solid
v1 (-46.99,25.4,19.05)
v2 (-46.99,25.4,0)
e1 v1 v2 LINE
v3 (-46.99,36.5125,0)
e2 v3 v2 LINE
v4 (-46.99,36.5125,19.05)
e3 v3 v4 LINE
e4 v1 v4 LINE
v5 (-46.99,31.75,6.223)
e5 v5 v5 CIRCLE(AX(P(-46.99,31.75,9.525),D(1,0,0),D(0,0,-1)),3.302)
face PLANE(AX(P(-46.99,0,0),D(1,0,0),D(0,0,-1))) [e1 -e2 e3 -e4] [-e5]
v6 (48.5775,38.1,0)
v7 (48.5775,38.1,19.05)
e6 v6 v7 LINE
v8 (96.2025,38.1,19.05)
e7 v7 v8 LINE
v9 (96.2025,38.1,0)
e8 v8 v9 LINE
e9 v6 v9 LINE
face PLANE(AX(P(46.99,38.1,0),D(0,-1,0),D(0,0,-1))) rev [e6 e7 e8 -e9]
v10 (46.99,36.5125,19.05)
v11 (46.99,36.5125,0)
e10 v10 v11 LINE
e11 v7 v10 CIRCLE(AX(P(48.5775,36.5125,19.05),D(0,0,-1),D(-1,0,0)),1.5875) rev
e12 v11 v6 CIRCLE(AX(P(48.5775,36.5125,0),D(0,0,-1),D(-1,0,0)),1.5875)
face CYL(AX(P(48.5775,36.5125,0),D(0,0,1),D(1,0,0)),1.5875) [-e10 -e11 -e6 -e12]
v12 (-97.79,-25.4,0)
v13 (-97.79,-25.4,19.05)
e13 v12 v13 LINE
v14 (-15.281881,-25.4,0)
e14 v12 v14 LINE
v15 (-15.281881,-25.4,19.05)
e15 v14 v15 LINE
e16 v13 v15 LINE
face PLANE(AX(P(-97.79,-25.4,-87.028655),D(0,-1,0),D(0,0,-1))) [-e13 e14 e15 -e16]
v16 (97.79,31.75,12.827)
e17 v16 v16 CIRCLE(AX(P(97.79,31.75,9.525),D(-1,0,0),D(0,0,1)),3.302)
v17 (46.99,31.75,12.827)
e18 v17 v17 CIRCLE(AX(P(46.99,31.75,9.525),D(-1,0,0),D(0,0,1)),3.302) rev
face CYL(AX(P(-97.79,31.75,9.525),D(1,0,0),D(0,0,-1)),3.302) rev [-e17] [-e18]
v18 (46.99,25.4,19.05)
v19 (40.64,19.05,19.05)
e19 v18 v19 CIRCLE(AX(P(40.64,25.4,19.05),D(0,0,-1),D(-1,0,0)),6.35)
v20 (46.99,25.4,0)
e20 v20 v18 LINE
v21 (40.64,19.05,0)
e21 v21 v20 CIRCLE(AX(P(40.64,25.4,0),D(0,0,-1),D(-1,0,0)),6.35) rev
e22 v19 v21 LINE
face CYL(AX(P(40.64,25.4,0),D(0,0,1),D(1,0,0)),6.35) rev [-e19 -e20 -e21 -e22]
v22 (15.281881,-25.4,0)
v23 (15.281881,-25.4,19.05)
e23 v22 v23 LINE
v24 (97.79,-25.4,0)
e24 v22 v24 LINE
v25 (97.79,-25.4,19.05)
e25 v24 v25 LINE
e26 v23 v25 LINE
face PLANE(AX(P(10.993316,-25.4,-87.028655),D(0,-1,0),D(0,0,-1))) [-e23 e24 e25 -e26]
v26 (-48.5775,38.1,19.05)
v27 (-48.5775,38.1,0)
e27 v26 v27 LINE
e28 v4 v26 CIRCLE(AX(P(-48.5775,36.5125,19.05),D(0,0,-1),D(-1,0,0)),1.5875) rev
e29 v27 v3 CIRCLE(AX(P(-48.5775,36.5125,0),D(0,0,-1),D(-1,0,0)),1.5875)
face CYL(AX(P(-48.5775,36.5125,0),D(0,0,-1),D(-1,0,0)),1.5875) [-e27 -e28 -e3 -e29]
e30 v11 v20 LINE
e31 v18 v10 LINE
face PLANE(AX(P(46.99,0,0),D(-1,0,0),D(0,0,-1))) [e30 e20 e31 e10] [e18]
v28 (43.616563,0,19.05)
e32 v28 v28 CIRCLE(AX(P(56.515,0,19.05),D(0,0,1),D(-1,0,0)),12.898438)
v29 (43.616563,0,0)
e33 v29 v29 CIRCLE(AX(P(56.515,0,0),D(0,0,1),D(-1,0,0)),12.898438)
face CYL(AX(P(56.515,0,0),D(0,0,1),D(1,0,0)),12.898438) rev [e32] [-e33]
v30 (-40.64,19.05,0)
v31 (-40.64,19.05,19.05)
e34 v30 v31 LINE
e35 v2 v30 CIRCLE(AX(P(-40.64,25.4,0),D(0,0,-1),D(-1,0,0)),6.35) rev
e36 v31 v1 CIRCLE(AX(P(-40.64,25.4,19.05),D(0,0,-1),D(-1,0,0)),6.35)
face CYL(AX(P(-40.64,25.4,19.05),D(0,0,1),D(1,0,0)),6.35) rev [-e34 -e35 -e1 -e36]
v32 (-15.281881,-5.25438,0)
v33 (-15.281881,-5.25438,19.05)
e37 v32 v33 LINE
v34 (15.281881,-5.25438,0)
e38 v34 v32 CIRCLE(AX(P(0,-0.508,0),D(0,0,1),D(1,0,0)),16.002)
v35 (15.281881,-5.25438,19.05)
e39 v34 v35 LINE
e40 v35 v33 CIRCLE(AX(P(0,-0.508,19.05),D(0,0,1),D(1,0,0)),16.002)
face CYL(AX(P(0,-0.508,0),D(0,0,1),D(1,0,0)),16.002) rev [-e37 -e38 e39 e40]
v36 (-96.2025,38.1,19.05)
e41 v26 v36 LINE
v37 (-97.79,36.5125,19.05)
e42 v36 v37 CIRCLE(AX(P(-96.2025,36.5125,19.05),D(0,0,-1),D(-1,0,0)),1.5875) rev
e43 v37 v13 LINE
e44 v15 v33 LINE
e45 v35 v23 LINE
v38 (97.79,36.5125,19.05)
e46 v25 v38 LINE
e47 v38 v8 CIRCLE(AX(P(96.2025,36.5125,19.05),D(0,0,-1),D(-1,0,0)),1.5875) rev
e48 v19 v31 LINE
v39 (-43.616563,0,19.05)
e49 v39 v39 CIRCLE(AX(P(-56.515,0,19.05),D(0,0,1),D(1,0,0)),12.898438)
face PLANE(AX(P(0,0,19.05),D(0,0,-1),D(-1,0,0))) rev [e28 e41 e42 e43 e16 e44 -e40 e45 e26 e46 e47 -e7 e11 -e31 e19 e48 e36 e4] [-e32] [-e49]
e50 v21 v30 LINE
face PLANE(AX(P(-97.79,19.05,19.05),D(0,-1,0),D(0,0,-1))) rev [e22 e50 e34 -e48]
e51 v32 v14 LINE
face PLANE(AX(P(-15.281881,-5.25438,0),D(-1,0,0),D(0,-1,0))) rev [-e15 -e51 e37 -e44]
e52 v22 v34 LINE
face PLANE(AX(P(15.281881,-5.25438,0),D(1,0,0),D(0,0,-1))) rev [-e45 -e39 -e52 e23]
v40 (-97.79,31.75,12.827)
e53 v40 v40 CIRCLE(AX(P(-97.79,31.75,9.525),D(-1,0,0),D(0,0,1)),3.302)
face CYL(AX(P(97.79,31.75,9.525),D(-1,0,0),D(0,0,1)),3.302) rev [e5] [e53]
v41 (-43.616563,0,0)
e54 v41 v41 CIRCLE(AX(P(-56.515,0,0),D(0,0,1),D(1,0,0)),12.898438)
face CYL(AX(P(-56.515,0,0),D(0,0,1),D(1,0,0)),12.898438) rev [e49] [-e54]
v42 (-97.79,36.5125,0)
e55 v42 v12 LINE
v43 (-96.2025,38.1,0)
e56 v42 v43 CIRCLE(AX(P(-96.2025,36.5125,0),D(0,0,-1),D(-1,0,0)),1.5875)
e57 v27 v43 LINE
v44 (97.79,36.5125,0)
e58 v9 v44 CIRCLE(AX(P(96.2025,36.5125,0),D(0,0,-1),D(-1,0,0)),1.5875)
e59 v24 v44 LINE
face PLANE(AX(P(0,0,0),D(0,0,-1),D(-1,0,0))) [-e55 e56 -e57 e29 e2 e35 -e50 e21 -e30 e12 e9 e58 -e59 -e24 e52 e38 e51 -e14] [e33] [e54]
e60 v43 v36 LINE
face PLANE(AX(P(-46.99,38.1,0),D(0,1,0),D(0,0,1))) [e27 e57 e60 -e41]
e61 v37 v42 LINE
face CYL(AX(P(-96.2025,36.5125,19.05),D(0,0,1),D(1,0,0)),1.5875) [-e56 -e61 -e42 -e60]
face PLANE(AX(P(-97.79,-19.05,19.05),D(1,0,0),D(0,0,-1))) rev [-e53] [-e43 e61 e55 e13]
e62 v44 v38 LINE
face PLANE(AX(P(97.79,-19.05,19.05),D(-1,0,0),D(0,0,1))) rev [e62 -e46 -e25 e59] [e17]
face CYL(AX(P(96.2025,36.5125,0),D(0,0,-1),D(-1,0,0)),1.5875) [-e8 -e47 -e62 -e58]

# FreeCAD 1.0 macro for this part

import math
import FreeCAD as App
import Part
import Sketcher
from FreeCAD import Vector
Q = App.Units.Quantity


def edges_at(feature, points):
    """Names of the edges that pass closest to the given points."""
    edges = feature.Shape.Edges
    near = lambda p: min(range(len(edges)), key=lambda i: edges[i].distToShape(Part.Vertex(*p))[0])
    return sorted({f"Edge{near(p) + 1}" for p in points})

doc = App.newDocument("Part")
body = doc.addObject("PartDesign::Body", "Body")

# Sketch on XY plane
sketch1 = doc.addObject("Sketcher::SketchObject", "Sketch")
body.addObject(sketch1)
sketch1.AttachmentSupport = (doc.XY_Plane, [""])
sketch1.MapMode = "FlatFace"
sketch1.addGeometry([
    Part.LineSegment(Vector(-98, 19, 0), Vector(-98, -19, 0)),
    Part.LineSegment(Vector(-98, -19, 0), Vector(98, -19, 0)),
    Part.LineSegment(Vector(98, -19, 0), Vector(98, 19, 0)),
    Part.LineSegment(Vector(98, 19, 0), Vector(-98, 19, 0)),
], False)
sketch1.addConstraint([
    Sketcher.Constraint("Coincident", 0, 2, 1, 1),
    Sketcher.Constraint("Coincident", 1, 2, 2, 1),
    Sketcher.Constraint("Coincident", 2, 2, 3, 1),
    Sketcher.Constraint("Coincident", 3, 2, 0, 1),
    Sketcher.Constraint("Vertical", 0),
    Sketcher.Constraint("Horizontal", 1),
    Sketcher.Constraint("Vertical", 2),
    Sketcher.Constraint("Horizontal", 3),
    Sketcher.Constraint("Symmetric", 0, 2, 2, 2, -1, 1),
    Sketcher.Constraint("DistanceX", 1, 1, 1, 2, Q("7.7 in")),
    Sketcher.Constraint("DistanceY", 0, 2, 0, 1, Q("1.5 in")),
])
pad1 = doc.addObject("PartDesign::Pad", "Pad")
body.addObject(pad1)
pad1.Profile = sketch1
pad1.Length = Q("0.75 in")

# Sketch on XY plane
sketch2 = doc.addObject("Sketcher::SketchObject", "Sketch001")
body.addObject(sketch2)
sketch2.AttachmentSupport = (doc.XY_Plane, [""])
sketch2.MapMode = "FlatFace"
sketch2.AttachmentOffset = App.Placement(Vector(0, 0, 0.75 * 25.4), App.Rotation())
sketch2.addGeometry([
    Part.Circle(Vector(-57, 0, 0), Vector(0, 0, 1), 13),
    Part.Circle(Vector(57, 0, 0), Vector(0, 0, 1), 13),
], False)
sketch2.addConstraint([
    Sketcher.Constraint("Equal", 0, 1),
    Sketcher.Constraint("Symmetric", 0, 3, 1, 3, -1, 1),
    Sketcher.Constraint("PointOnObject", 0, 3, -1),
    Sketcher.Constraint("Diameter", 0, Q("1.015625 in")),
    Sketcher.Constraint("DistanceX", 0, 3, 1, 3, Q("4.45 in")),
])
pocket1 = doc.addObject("PartDesign::Pocket", "Pocket")
body.addObject(pocket1)
pocket1.Profile = sketch2
pocket1.Type = "ThroughAll"

# Sketch on XY plane
sketch3 = doc.addObject("Sketcher::SketchObject", "Sketch002")
body.addObject(sketch3)
sketch3.AttachmentSupport = (doc.XY_Plane, [""])
sketch3.MapMode = "FlatFace"
sketch3.AttachmentOffset = App.Placement(Vector(0, 0, 0.75 * 25.4), App.Rotation())
sketch3.addGeometry([
    Part.LineSegment(Vector(-15, -5, 0), Vector(-10, -22, 0)),
    Part.LineSegment(Vector(-10, -22, 0), Vector(10, -22, 0)),
    Part.LineSegment(Vector(10, -22, 0), Vector(15, -5, 0)),
    Part.ArcOfCircle(Part.Circle(Vector(0, -1, 0), Vector(0, 0, 1), 16), math.radians(-17), math.radians(197)),
], False)
sketch3.addConstraint([
    Sketcher.Constraint("Coincident", 0, 2, 1, 1),
    Sketcher.Constraint("Coincident", 1, 2, 2, 1),
    Sketcher.Constraint("Coincident", 2, 2, 3, 1),
    Sketcher.Constraint("Coincident", 3, 2, 0, 1),
    Sketcher.Constraint("Horizontal", 1),
    Sketcher.Constraint("Symmetric", 2, 2, 3, 2, -2),
    Sketcher.Constraint("Equal", 0, 2),
    Sketcher.Constraint("Radius", 3, Q("0.63 in")),
    Sketcher.Constraint("DistanceY", 3, 3, -1, 1, Q("0.02 in")),
    Sketcher.Constraint("Distance", 0, 17.502989),
    Sketcher.Constraint("DistanceX", 1, 1, 1, 2, 20.172182),
    Sketcher.Constraint("DistanceX", -1, 1, 2, 2, 15.281881),
])
pocket2 = doc.addObject("PartDesign::Pocket", "Pocket001")
body.addObject(pocket2)
pocket2.Profile = sketch3
pocket2.Type = "ThroughAll"

# Sketch on YZ plane
sketch4 = doc.addObject("Sketcher::SketchObject", "Sketch003")
body.addObject(sketch4)
sketch4.AttachmentSupport = (doc.YZ_Plane, [""])
sketch4.MapMode = "FlatFace"
sketch4.AttachmentOffset = App.Placement(Vector(0, 0, -3.85 * 25.4), App.Rotation())
sketch4.addGeometry([
    Part.LineSegment(Vector(38, 0, 0), Vector(19, 0, 0)),
    Part.LineSegment(Vector(19, 0, 0), Vector(19, 19, 0)),
    Part.LineSegment(Vector(19, 19, 0), Vector(38, 19, 0)),
    Part.LineSegment(Vector(38, 19, 0), Vector(38, 0, 0)),
], False)
sketch4.addConstraint([
    Sketcher.Constraint("Coincident", 0, 2, 1, 1),
    Sketcher.Constraint("Coincident", 1, 2, 2, 1),
    Sketcher.Constraint("Coincident", 2, 2, 3, 1),
    Sketcher.Constraint("Coincident", 3, 2, 0, 1),
    Sketcher.Constraint("Horizontal", 0),
    Sketcher.Constraint("Vertical", 1),
    Sketcher.Constraint("Horizontal", 2),
    Sketcher.Constraint("Vertical", 3),
    Sketcher.Constraint("PointOnObject", 0, 2, -1),
    Sketcher.Constraint("Equal", 2, 1),
    Sketcher.Constraint("DistanceX", 0, 2, 0, 1, Q("0.75 in")),
    Sketcher.Constraint("DistanceX", -1, 1, 2, 2, Q("1.5 in")),
])
pad2 = doc.addObject("PartDesign::Pad", "Pad001")
body.addObject(pad2)
pad2.Profile = sketch4
pad2.Length = Q("2 in")

# Sketch on YZ plane
sketch5 = doc.addObject("Sketcher::SketchObject", "Sketch004")
body.addObject(sketch5)
sketch5.AttachmentSupport = (doc.YZ_Plane, [""])
sketch5.MapMode = "FlatFace"
sketch5.AttachmentOffset = App.Placement(Vector(0, 0, -3.85 * 25.4), App.Rotation())
sketch5.addGeometry(Part.Circle(Vector(31.8, 9.5, 0), Vector(0, 0, 1), 3.3), False)
sketch5.addConstraint([
    Sketcher.Constraint("Diameter", 0, Q("0.26 in")),
    Sketcher.Constraint("DistanceX", -1, 1, 0, 3, Q("1.25 in")),
    Sketcher.Constraint("DistanceY", -1, 1, 0, 3, Q("0.375 in")),
])
pocket3 = doc.addObject("PartDesign::Pocket", "Pocket002")
body.addObject(pocket3)
pocket3.Profile = sketch5
pocket3.Type = "ThroughAll"
pocket3.Reversed = True
doc.recompute()

mirrored = doc.addObject("PartDesign::Mirrored", "Mirrored")
body.addObject(mirrored)
mirrored.Originals = [pad2, pocket3]
mirrored.MirrorPlane = (doc.YZ_Plane, [""])
body.Tip = mirrored
doc.recompute()

fillet = doc.addObject("PartDesign::Fillet", "Fillet")
body.addObject(fillet)
fillet.Base = (mirrored, edges_at(mirrored, [(-46.99, 19.05, 9.525), (46.99, 19.05, 9.525)]))
fillet.Radius = Q("0.25 in")
doc.recompute()

fillet2 = doc.addObject("PartDesign::Fillet", "Fillet001")
body.addObject(fillet2)
fillet2.Base = (fillet, edges_at(fillet, [
    (-46.99, 38.1, 9.525),
    (-97.79, 38.1, 9.525),
    (97.79, 38.1, 9.525),
    (46.99, 38.1, 9.525),
]))
fillet2.Radius = Q("0.0625 in")

# Sketch on XY plane
sketch6 = doc.addObject("Sketcher::SketchObject", "Sketch005")
body.addObject(sketch6)
sketch6.AttachmentSupport = (doc.XY_Plane, [""])
sketch6.MapMode = "FlatFace"
sketch6.AttachmentOffset = App.Placement(Vector(0, 0, 0.75 * 25.4), App.Rotation())
sketch6.addGeometry([
    Part.LineSegment(Vector(-98, -19, 0), Vector(-98, -25, 0)),  # 0
    Part.LineSegment(Vector(-98, -25, 0), Vector(-11, -25, 0)),  # 1
    Part.LineSegment(Vector(-11, -25, 0), Vector(-11, -19, 0)),  # 2
    Part.LineSegment(Vector(-11, -19, 0), Vector(-98, -19, 0)),  # 3
    Part.LineSegment(Vector(11, -19, 0), Vector(11, -25, 0)),  # 4
    Part.LineSegment(Vector(11, -25, 0), Vector(98, -25, 0)),  # 5
    Part.LineSegment(Vector(98, -25, 0), Vector(98, -19, 0)),  # 6
    Part.LineSegment(Vector(98, -19, 0), Vector(11, -19, 0)),  # 7
], False)
sketch6.addConstraint([
    Sketcher.Constraint("Coincident", 0, 2, 1, 1),
    Sketcher.Constraint("Coincident", 1, 2, 2, 1),
    Sketcher.Constraint("Coincident", 2, 2, 3, 1),
    Sketcher.Constraint("Coincident", 3, 2, 0, 1),
    Sketcher.Constraint("Coincident", 4, 2, 5, 1),
    Sketcher.Constraint("Coincident", 5, 2, 6, 1),
    Sketcher.Constraint("Coincident", 6, 2, 7, 1),
    Sketcher.Constraint("Coincident", 7, 2, 4, 1),
    Sketcher.Constraint("Vertical", 0),
    Sketcher.Constraint("Horizontal", 1),
    Sketcher.Constraint("Vertical", 2),
    Sketcher.Constraint("Horizontal", 3),
    Sketcher.Constraint("Vertical", 4),
    Sketcher.Constraint("Horizontal", 5),
    Sketcher.Constraint("Vertical", 6),
    Sketcher.Constraint("Horizontal", 7),
    Sketcher.Constraint("Symmetric", 1, 2, 4, 2, -2),
    Sketcher.Constraint("Symmetric", 3, 2, 6, 2, -2),
    Sketcher.Constraint("DistanceY", 0, 2, -1, 1, Q("1 in")),
    Sketcher.Constraint("DistanceY", 0, 2, 0, 1, Q("0.25 in")),
    Sketcher.Constraint("DistanceX", 0, 2, 5, 2, Q("7.7 in")),
    Sketcher.Constraint("DistanceX", 1, 1, 1, 2, 86.796684),
])
pad3 = doc.addObject("PartDesign::Pad", "Pad002")
body.addObject(pad3)
pad3.Profile = sketch6
pad3.Length = Q("0.75 in")
pad3.Reversed = True

# Sketch on XY plane
sketch7 = doc.addObject("Sketcher::SketchObject", "Sketch006")
body.addObject(sketch7)
sketch7.AttachmentSupport = (doc.XY_Plane, [""])
sketch7.MapMode = "FlatFace"
sketch7.AttachmentOffset = App.Placement(Vector(0, 0, 0.75 * 25.4), App.Rotation())
sketch7.addGeometry([
    Part.LineSegment(Vector(-15, -5, 0), Vector(-15, -25, 0)),
    Part.LineSegment(Vector(-15, -25, 0), Vector(15, -25, 0)),
    Part.LineSegment(Vector(15, -25, 0), Vector(15, -5, 0)),
    Part.LineSegment(Vector(15, -5, 0), Vector(-15, -5, 0)),
], False)
sketch7.addConstraint([
    Sketcher.Constraint("Coincident", 0, 2, 1, 1),
    Sketcher.Constraint("Coincident", 1, 2, 2, 1),
    Sketcher.Constraint("Coincident", 2, 2, 3, 1),
    Sketcher.Constraint("Coincident", 3, 2, 0, 1),
    Sketcher.Constraint("Vertical", 0),
    Sketcher.Constraint("Horizontal", 1),
    Sketcher.Constraint("Vertical", 2),
    Sketcher.Constraint("Horizontal", 3),
    Sketcher.Constraint("DistanceY", 0, 2, -1, 1, Q("1 in")),
    Sketcher.Constraint("DistanceX", 1, 1, 1, 2, 30.563762),
    Sketcher.Constraint("DistanceY", 0, 2, 0, 1, 20.14562),
    Sketcher.Constraint("DistanceX", 0, 2, -1, 1, 15.281881),
])
pocket4 = doc.addObject("PartDesign::Pocket", "Pocket003")
body.addObject(pocket4)
pocket4.Profile = sketch7
pocket4.Type = "ThroughAll"
pocket4.Midplane = True

doc.recompute()
